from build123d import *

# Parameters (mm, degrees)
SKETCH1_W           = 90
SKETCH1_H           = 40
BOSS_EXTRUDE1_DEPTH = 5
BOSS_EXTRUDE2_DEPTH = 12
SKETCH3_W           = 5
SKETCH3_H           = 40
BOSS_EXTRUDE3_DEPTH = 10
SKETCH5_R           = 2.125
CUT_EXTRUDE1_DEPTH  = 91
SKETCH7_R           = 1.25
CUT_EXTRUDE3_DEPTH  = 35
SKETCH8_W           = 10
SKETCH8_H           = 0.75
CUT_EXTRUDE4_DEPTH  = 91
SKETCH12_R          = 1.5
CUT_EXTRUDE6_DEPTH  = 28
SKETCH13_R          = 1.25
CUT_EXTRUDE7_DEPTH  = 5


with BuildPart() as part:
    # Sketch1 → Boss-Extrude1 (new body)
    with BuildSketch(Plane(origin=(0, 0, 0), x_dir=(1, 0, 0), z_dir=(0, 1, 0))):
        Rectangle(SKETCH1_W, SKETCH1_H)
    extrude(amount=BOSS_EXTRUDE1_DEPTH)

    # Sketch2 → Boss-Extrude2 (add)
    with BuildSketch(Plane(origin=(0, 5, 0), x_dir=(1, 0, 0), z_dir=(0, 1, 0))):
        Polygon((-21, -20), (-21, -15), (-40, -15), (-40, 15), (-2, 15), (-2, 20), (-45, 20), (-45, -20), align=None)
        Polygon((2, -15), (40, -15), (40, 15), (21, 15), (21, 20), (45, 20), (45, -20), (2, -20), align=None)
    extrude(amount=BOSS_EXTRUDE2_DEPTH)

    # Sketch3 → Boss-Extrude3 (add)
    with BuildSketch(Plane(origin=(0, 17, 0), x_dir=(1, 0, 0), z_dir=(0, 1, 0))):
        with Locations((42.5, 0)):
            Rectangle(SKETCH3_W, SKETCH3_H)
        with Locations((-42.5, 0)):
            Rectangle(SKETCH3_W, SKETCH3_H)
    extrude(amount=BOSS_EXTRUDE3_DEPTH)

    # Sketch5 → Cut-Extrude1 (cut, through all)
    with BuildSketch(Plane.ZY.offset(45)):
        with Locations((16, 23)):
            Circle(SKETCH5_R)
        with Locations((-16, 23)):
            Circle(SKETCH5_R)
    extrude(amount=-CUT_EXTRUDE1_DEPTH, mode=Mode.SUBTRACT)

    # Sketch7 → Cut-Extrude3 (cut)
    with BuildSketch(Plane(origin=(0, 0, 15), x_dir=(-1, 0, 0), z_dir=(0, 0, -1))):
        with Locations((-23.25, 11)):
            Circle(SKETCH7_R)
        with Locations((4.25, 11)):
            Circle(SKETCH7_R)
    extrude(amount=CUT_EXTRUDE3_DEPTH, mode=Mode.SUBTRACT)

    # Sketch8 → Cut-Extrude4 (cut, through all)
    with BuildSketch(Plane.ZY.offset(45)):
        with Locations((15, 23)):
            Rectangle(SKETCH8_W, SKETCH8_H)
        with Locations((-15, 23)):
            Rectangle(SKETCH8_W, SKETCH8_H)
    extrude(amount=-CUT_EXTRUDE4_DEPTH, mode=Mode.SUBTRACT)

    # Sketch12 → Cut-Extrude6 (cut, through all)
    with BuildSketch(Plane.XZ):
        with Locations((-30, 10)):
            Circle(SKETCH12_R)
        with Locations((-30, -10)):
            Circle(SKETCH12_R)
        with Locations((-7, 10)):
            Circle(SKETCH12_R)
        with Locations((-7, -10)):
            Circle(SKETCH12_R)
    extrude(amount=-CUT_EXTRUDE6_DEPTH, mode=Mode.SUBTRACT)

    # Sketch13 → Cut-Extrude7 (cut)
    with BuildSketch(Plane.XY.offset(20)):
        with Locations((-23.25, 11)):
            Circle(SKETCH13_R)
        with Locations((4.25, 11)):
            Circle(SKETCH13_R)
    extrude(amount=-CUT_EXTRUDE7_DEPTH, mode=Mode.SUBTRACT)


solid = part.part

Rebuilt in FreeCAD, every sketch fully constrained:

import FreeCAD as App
import Part
import Sketcher
Q = App.Units.Quantity


def add_polygon(sketch, points):
    """Adds a closed chain of lines whose ends are joined by coincident constraints."""
    first, n = sketch.GeometryCount, len(points)
    for a, b in zip(points, points[1:] + points[:1]):
        sketch.addGeometry(Part.LineSegment(App.Vector(*a, 0), App.Vector(*b, 0)), False)
    for i in range(n):
        sketch.addConstraint(Sketcher.Constraint("Coincident", first + i, 2, first + (i + 1) % n, 1))

doc = App.newDocument("Part")
body = doc.addObject("PartDesign::Body", "Body")

# Sketch on XZ plane
sketch1 = body.newObject("Sketcher::SketchObject", "Sketch")
sketch1.AttachmentSupport = (doc.getObject("XZ_Plane"), [""])
sketch1.MapMode = "FlatFace"
add_polygon(sketch1, [(-45, -20), (-45, 20), (45, 20), (45, -20)])  # lines 0-3
sketch1.addConstraint(Sketcher.Constraint("Vertical", 0))
sketch1.addConstraint(Sketcher.Constraint("Horizontal", 1))
sketch1.addConstraint(Sketcher.Constraint("Vertical", 2))
sketch1.addConstraint(Sketcher.Constraint("Horizontal", 3))
sketch1.addConstraint(Sketcher.Constraint("Symmetric", 0, 2, 2, 2, -1, 1))
sketch1.addConstraint(Sketcher.Constraint("DistanceX", 1, 1, 1, 2, Q("90 mm")))
sketch1.addConstraint(Sketcher.Constraint("DistanceY", 0, 1, 0, 2, Q("40 mm")))
pad1 = body.newObject("PartDesign::Pad", "Pad")
pad1.Profile = sketch1
pad1.Length = 5
pad1.Reversed = True

# Sketch on XZ plane
sketch2 = body.newObject("Sketcher::SketchObject", "Sketch001")
sketch2.AttachmentSupport = (doc.getObject("XZ_Plane"), [""])
sketch2.MapMode = "FlatFace"
sketch2.AttachmentOffset = App.Placement(App.Vector(0, 0, -5), App.Rotation())
add_polygon(sketch2, [(-21, 20), (-21, 15), (-40, 15), (-40, -15), (-2, -15), (-2, -20), (-45, -20), (-45, 20)])  # lines 0-7
add_polygon(sketch2, [(40, 15), (2, 15), (2, 20), (45, 20), (45, -20), (21, -20), (21, -15), (40, -15)])  # lines 8-15
sketch2.addConstraint(Sketcher.Constraint("Vertical", 0))
sketch2.addConstraint(Sketcher.Constraint("Horizontal", 1))
sketch2.addConstraint(Sketcher.Constraint("Vertical", 2))
sketch2.addConstraint(Sketcher.Constraint("Horizontal", 3))
sketch2.addConstraint(Sketcher.Constraint("Vertical", 4))
sketch2.addConstraint(Sketcher.Constraint("Horizontal", 5))
sketch2.addConstraint(Sketcher.Constraint("Vertical", 6))
sketch2.addConstraint(Sketcher.Constraint("Horizontal", 7))
sketch2.addConstraint(Sketcher.Constraint("Horizontal", 8))
sketch2.addConstraint(Sketcher.Constraint("Vertical", 9))
sketch2.addConstraint(Sketcher.Constraint("Horizontal", 10))
sketch2.addConstraint(Sketcher.Constraint("Vertical", 11))
sketch2.addConstraint(Sketcher.Constraint("Horizontal", 12))
sketch2.addConstraint(Sketcher.Constraint("Vertical", 13))
sketch2.addConstraint(Sketcher.Constraint("Horizontal", 14))
sketch2.addConstraint(Sketcher.Constraint("Vertical", 15))
sketch2.addConstraint(Sketcher.Constraint("Symmetric", 3, 2, 8, 2, -1, 1))
sketch2.addConstraint(Sketcher.Constraint("Symmetric", 5, 2, 10, 2, -1, 1))
sketch2.addConstraint(Sketcher.Constraint("Symmetric", 7, 2, 12, 2, -1, 1))
sketch2.addConstraint(Sketcher.Constraint("Symmetric", 1, 2, 14, 2, -1, 1))
sketch2.addConstraint(Sketcher.Constraint("Horizontal", 1, 2, 8, 2))
sketch2.addConstraint(Sketcher.Constraint("Horizontal", 7, 2, 9, 2))
sketch2.addConstraint(Sketcher.Constraint("DistanceX", 1, 2, 1, 1, Q("19 mm")))
sketch2.addConstraint(Sketcher.Constraint("DistanceX", 3, 1, 3, 2, Q("38 mm")))
sketch2.addConstraint(Sketcher.Constraint("DistanceX", 5, 2, 5, 1, Q("43 mm")))
sketch2.addConstraint(Sketcher.Constraint("DistanceY", 0, 2, 0, 1, Q("5 mm")))
sketch2.addConstraint(Sketcher.Constraint("DistanceY", 2, 2, 2, 1, Q("30 mm")))
sketch2.addConstraint(Sketcher.Constraint("DistanceX", 0, 2, -1, 1, Q("21 mm")))
pad2 = body.newObject("PartDesign::Pad", "Pad001")
pad2.Profile = sketch2
pad2.Length = 12
pad2.Reversed = True

# Sketch on XZ plane
sketch3 = body.newObject("Sketcher::SketchObject", "Sketch002")
sketch3.AttachmentSupport = (doc.getObject("XZ_Plane"), [""])
sketch3.MapMode = "FlatFace"
sketch3.AttachmentOffset = App.Placement(App.Vector(0, 0, -17), App.Rotation())
add_polygon(sketch3, [(40, -20), (40, 20), (45, 20), (45, -20)])  # lines 0-3
add_polygon(sketch3, [(-45, -20), (-45, 20), (-40, 20), (-40, -20)])  # lines 4-7
sketch3.addConstraint(Sketcher.Constraint("Vertical", 0))
sketch3.addConstraint(Sketcher.Constraint("Horizontal", 1))
sketch3.addConstraint(Sketcher.Constraint("Vertical", 2))
sketch3.addConstraint(Sketcher.Constraint("Horizontal", 3))
sketch3.addConstraint(Sketcher.Constraint("Vertical", 4))
sketch3.addConstraint(Sketcher.Constraint("Horizontal", 5))
sketch3.addConstraint(Sketcher.Constraint("Vertical", 6))
sketch3.addConstraint(Sketcher.Constraint("Horizontal", 7))
sketch3.addConstraint(Sketcher.Constraint("Symmetric", 2, 2, 4, 2, -1, 1))
sketch3.addConstraint(Sketcher.Constraint("Symmetric", 0, 2, 6, 2, -1, 1))
sketch3.addConstraint(Sketcher.Constraint("Horizontal", 1, 2, 4, 2))
sketch3.addConstraint(Sketcher.Constraint("DistanceX", 1, 1, 1, 2, Q("5 mm")))
sketch3.addConstraint(Sketcher.Constraint("DistanceY", 0, 1, 0, 2, Q("40 mm")))
sketch3.addConstraint(Sketcher.Constraint("DistanceX", -1, 1, 0, 2, Q("40 mm")))
pad3 = body.newObject("PartDesign::Pad", "Pad002")
pad3.Profile = sketch3
pad3.Length = 10
pad3.Reversed = True

# Sketch on YZ plane
sketch4 = body.newObject("Sketcher::SketchObject", "Sketch003")
sketch4.AttachmentSupport = (doc.getObject("YZ_Plane"), [""])
sketch4.MapMode = "FlatFace"
sketch4.AttachmentOffset = App.Placement(App.Vector(0, 0, -45), App.Rotation())
sketch4.addGeometry(Part.Circle(App.Vector(23, 16, 0), App.Vector(0, 0, 1), 2.125), False)
sketch4.addGeometry(Part.Circle(App.Vector(23, -16, 0), App.Vector(0, 0, 1), 2.125), False)
sketch4.addConstraint(Sketcher.Constraint("Equal", 0, 1))
sketch4.addConstraint(Sketcher.Constraint("Symmetric", 0, 3, 1, 3, -1))
sketch4.addConstraint(Sketcher.Constraint("Diameter", 0, Q("4.25 mm")))
sketch4.addConstraint(Sketcher.Constraint("DistanceX", -1, 1, 0, 3, Q("23 mm")))
sketch4.addConstraint(Sketcher.Constraint("DistanceY", -1, 1, 0, 3, Q("16 mm")))
pocket1 = body.newObject("PartDesign::Pocket", "Pocket")
pocket1.Profile = sketch4
pocket1.Type = "ThroughAll"
pocket1.Reversed = True

# Sketch on XY plane
sketch5 = body.newObject("Sketcher::SketchObject", "Sketch004")
sketch5.AttachmentSupport = (doc.getObject("XY_Plane"), [""])
sketch5.MapMode = "FlatFace"
sketch5.AttachmentOffset = App.Placement(App.Vector(0, 0, 15), App.Rotation())
sketch5.addGeometry(Part.Circle(App.Vector(23.25, 11, 0), App.Vector(0, 0, 1), 1.25), False)
sketch5.addGeometry(Part.Circle(App.Vector(-4.25, 11, 0), App.Vector(0, 0, 1), 1.25), False)
sketch5.addConstraint(Sketcher.Constraint("Equal", 0, 1))
sketch5.addConstraint(Sketcher.Constraint("Horizontal", 0, 3, 1, 3))
sketch5.addConstraint(Sketcher.Constraint("Diameter", 0, Q("2.5 mm")))
sketch5.addConstraint(Sketcher.Constraint("DistanceY", -1, 1, 0, 3, Q("11 mm")))
sketch5.addConstraint(Sketcher.Constraint("DistanceX", 1, 3, 0, 3, Q("27.5 mm")))
sketch5.addConstraint(Sketcher.Constraint("DistanceX", -1, 1, 0, 3, Q("23.25 mm")))
pocket2 = body.newObject("PartDesign::Pocket", "Pocket001")
pocket2.Profile = sketch5
pocket2.Length = 35

# Sketch on YZ plane
sketch6 = body.newObject("Sketcher::SketchObject", "Sketch005")
sketch6.AttachmentSupport = (doc.getObject("YZ_Plane"), [""])
sketch6.MapMode = "FlatFace"
sketch6.AttachmentOffset = App.Placement(App.Vector(0, 0, -45), App.Rotation())
add_polygon(sketch6, [(23.375, 10), (22.625, 10), (22.625, 20), (23.375, 20)])  # lines 0-3
add_polygon(sketch6, [(23.375, -20), (22.625, -20), (22.625, -10), (23.375, -10)])  # lines 4-7
sketch6.addConstraint(Sketcher.Constraint("Horizontal", 0))
sketch6.addConstraint(Sketcher.Constraint("Vertical", 1))
sketch6.addConstraint(Sketcher.Constraint("Horizontal", 2))
sketch6.addConstraint(Sketcher.Constraint("Vertical", 3))
sketch6.addConstraint(Sketcher.Constraint("Horizontal", 4))
sketch6.addConstraint(Sketcher.Constraint("Vertical", 5))
sketch6.addConstraint(Sketcher.Constraint("Horizontal", 6))
sketch6.addConstraint(Sketcher.Constraint("Vertical", 7))
sketch6.addConstraint(Sketcher.Constraint("Symmetric", 1, 2, 4, 2, -1))
sketch6.addConstraint(Sketcher.Constraint("Symmetric", 3, 2, 6, 2, -1))
sketch6.addConstraint(Sketcher.Constraint("DistanceY", 1, 1, 1, 2, Q("10 mm")))
sketch6.addConstraint(Sketcher.Constraint("DistanceY", -1, 1, 0, 2, Q("10 mm")))
sketch6.addConstraint(Sketcher.Constraint("DistanceX", 0, 2, 0, 1, Q("0.75 mm")))
sketch6.addConstraint(Sketcher.Constraint("DistanceX", -1, 1, 0, 2, Q("22.625 mm")))
pocket3 = body.newObject("PartDesign::Pocket", "Pocket002")
pocket3.Profile = sketch6
pocket3.Type = "ThroughAll"
pocket3.Reversed = True

# Sketch on XZ plane
sketch7 = body.newObject("Sketcher::SketchObject", "Sketch006")
sketch7.AttachmentSupport = (doc.getObject("XZ_Plane"), [""])
sketch7.MapMode = "FlatFace"
sketch7.addGeometry(Part.Circle(App.Vector(-30, 10, 0), App.Vector(0, 0, 1), 1.5), False)
sketch7.addGeometry(Part.Circle(App.Vector(-30, -10, 0), App.Vector(0, 0, 1), 1.5), False)
sketch7.addGeometry(Part.Circle(App.Vector(-7, 10, 0), App.Vector(0, 0, 1), 1.5), False)
sketch7.addGeometry(Part.Circle(App.Vector(-7, -10, 0), App.Vector(0, 0, 1), 1.5), False)
sketch7.addConstraint(Sketcher.Constraint("Equal", 0, 1))
sketch7.addConstraint(Sketcher.Constraint("Equal", 1, 2))
sketch7.addConstraint(Sketcher.Constraint("Equal", 2, 3))
sketch7.addConstraint(Sketcher.Constraint("Symmetric", 0, 3, 1, 3, -1))
sketch7.addConstraint(Sketcher.Constraint("Symmetric", 2, 3, 3, 3, -1))
sketch7.addConstraint(Sketcher.Constraint("Horizontal", 0, 3, 2, 3))
sketch7.addConstraint(Sketcher.Constraint("Diameter", 0, Q("3 mm")))
sketch7.addConstraint(Sketcher.Constraint("DistanceX", 0, 3, -1, 1, Q("30 mm")))
sketch7.addConstraint(Sketcher.Constraint("DistanceY", -1, 1, 0, 3, Q("10 mm")))
sketch7.addConstraint(Sketcher.Constraint("DistanceX", 2, 3, -1, 1, Q("7 mm")))
pocket4 = body.newObject("PartDesign::Pocket", "Pocket003")
pocket4.Profile = sketch7
pocket4.Type = "ThroughAll"

# Sketch on XY plane
sketch8 = body.newObject("Sketcher::SketchObject", "Sketch007")
sketch8.AttachmentSupport = (doc.getObject("XY_Plane"), [""])
sketch8.MapMode = "FlatFace"
sketch8.AttachmentOffset = App.Placement(App.Vector(0, 0, 20), App.Rotation())
sketch8.addGeometry(Part.Circle(App.Vector(-23.25, 11, 0), App.Vector(0, 0, 1), 1.25), False)
sketch8.addGeometry(Part.Circle(App.Vector(4.25, 11, 0), App.Vector(0, 0, 1), 1.25), False)
sketch8.addConstraint(Sketcher.Constraint("Equal", 0, 1))
sketch8.addConstraint(Sketcher.Constraint("Horizontal", 0, 3, 1, 3))
sketch8.addConstraint(Sketcher.Constraint("Diameter", 0, Q("2.5 mm")))
sketch8.addConstraint(Sketcher.Constraint("DistanceY", -1, 1, 0, 3, Q("11 mm")))
sketch8.addConstraint(Sketcher.Constraint("DistanceX", 0, 3, 1, 3, Q("27.5 mm")))
sketch8.addConstraint(Sketcher.Constraint("DistanceX", 0, 3, -1, 1, Q("23.25 mm")))
pocket5 = body.newObject("PartDesign::Pocket", "Pocket004")
pocket5.Profile = sketch8
pocket5.Length = 5

doc.recompute()
